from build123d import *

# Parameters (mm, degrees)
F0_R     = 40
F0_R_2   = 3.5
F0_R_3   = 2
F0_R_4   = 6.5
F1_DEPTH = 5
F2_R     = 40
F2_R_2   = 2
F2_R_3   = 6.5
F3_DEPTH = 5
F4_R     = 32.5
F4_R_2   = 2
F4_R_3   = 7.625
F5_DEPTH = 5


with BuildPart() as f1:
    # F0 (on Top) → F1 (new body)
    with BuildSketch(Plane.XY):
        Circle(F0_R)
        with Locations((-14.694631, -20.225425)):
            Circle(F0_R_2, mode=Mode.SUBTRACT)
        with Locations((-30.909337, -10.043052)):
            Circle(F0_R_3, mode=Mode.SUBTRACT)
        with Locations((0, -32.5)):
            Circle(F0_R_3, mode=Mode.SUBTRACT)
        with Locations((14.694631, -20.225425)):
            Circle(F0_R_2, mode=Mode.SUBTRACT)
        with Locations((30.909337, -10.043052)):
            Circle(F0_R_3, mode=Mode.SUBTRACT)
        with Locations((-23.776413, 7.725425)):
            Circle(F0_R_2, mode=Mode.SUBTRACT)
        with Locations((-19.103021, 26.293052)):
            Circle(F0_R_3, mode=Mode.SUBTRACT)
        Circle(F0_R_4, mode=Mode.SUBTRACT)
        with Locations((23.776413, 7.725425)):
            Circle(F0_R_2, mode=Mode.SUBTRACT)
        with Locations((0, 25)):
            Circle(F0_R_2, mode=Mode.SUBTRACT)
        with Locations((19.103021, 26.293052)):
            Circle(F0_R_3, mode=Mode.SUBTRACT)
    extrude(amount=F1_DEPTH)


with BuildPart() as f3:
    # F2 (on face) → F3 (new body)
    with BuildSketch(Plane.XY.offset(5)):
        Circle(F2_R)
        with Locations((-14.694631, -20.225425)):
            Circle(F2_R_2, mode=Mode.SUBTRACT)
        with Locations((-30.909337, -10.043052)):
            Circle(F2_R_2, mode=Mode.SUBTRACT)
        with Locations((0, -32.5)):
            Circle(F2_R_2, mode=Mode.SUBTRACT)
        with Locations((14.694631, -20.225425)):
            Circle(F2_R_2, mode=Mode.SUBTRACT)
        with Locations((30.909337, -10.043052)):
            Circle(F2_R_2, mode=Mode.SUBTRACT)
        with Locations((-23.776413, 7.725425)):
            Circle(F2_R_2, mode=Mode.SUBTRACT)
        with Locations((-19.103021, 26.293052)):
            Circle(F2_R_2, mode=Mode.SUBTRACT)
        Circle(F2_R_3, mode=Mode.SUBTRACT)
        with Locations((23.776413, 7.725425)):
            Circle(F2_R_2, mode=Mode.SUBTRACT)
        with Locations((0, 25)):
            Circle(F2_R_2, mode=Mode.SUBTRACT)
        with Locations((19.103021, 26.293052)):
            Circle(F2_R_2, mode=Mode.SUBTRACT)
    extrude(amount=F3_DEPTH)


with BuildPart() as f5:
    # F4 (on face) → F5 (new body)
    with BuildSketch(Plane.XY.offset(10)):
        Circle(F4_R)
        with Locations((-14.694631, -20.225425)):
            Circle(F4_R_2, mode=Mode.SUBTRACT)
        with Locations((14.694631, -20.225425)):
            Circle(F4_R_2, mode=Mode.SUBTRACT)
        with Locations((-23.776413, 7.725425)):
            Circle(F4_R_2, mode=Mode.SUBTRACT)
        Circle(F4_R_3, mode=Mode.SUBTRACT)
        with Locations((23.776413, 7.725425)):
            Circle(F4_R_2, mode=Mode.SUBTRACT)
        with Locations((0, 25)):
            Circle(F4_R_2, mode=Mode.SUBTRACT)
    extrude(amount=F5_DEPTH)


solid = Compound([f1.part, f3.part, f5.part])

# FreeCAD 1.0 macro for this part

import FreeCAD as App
import Part
import Sketcher

doc = App.newDocument("Part")
body = doc.addObject("PartDesign::Body", "Body")

# Sketch on XY plane
sketch1 = body.newObject("Sketcher::SketchObject", "Sketch")
sketch1.AttachmentSupport = (doc.getObject("XY_Plane"), [""])
sketch1.MapMode = "FlatFace"
sketch1.addGeometry(Part.Circle(App.Vector(0, 0, 0), App.Vector(0, 0, 1), 40), False)
sketch1.addGeometry(Part.Circle(App.Vector(0, -32.5, 0), App.Vector(0, 0, 1), 2), False)
sketch1.addGeometry(Part.Circle(App.Vector(-14.7, -20.2, 0), App.Vector(0, 0, 1), 3.5), False)
sketch1.addGeometry(Part.Circle(App.Vector(-30.9, -10, 0), App.Vector(0, 0, 1), 2), False)
sketch1.addGeometry(Part.Circle(App.Vector(14.7, -20.2, 0), App.Vector(0, 0, 1), 3.5), False)
sketch1.addGeometry(Part.Circle(App.Vector(30.9, -10, 0), App.Vector(0, 0, 1), 2), False)
sketch1.addGeometry(Part.Circle(App.Vector(-23.8, 7.7, 0), App.Vector(0, 0, 1), 3.5), False)
sketch1.addGeometry(Part.Circle(App.Vector(0, 0, 0), App.Vector(0, 0, 1), 6.5), False)
sketch1.addGeometry(Part.Circle(App.Vector(-19.1, 26.3, 0), App.Vector(0, 0, 1), 2), False)
sketch1.addGeometry(Part.Circle(App.Vector(0, 25, 0), App.Vector(0, 0, 1), 3.5), False)
sketch1.addGeometry(Part.Circle(App.Vector(23.8, 7.7, 0), App.Vector(0, 0, 1), 3.5), False)
sketch1.addGeometry(Part.Circle(App.Vector(19.1, 26.3, 0), App.Vector(0, 0, 1), 2), False)
sketch1.addConstraint(Sketcher.Constraint("Coincident", 0, 3, -1, 1))
sketch1.addConstraint(Sketcher.Constraint("Coincident", 7, 3, -1, 1))
sketch1.addConstraint(Sketcher.Constraint("Equal", 1, 3))
sketch1.addConstraint(Sketcher.Constraint("Equal", 2, 4))
sketch1.addConstraint(Sketcher.Constraint("Equal", 3, 5))
sketch1.addConstraint(Sketcher.Constraint("Equal", 4, 6))
sketch1.addConstraint(Sketcher.Constraint("Equal", 5, 8))
sketch1.addConstraint(Sketcher.Constraint("Equal", 6, 9))
sketch1.addConstraint(Sketcher.Constraint("Equal", 9, 10))
sketch1.addConstraint(Sketcher.Constraint("Equal", 8, 11))
sketch1.addConstraint(Sketcher.Constraint("Symmetric", 2, 3, 4, 3, -2))
sketch1.addConstraint(Sketcher.Constraint("Symmetric", 3, 3, 5, 3, -2))
sketch1.addConstraint(Sketcher.Constraint("Symmetric", 6, 3, 10, 3, -2))
sketch1.addConstraint(Sketcher.Constraint("Symmetric", 8, 3, 11, 3, -2))
sketch1.addConstraint(Sketcher.Constraint("PointOnObject", 1, 3, -2))
sketch1.addConstraint(Sketcher.Constraint("PointOnObject", 9, 3, -2))
sketch1.addConstraint(Sketcher.Constraint("Diameter", 0, 80.0))
sketch1.addConstraint(Sketcher.Constraint("Diameter", 1, 4.0))
sketch1.addConstraint(Sketcher.Constraint("Diameter", 2, 7.0))
sketch1.addConstraint(Sketcher.Constraint("Diameter", 7, 13.0))
sketch1.addConstraint(Sketcher.Constraint("DistanceY", -1, 1, 9, 3, 25.0))
sketch1.addConstraint(Sketcher.Constraint("DistanceY", 1, 3, -1, 1, 32.5))
sketch1.addConstraint(Sketcher.Constraint("DistanceX", 2, 3, -1, 1, 14.694631))
sketch1.addConstraint(Sketcher.Constraint("DistanceX", 8, 3, -1, 1, 19.103021))
sketch1.addConstraint(Sketcher.Constraint("DistanceY", -1, 1, 8, 3, 26.293052))
sketch1.addConstraint(Sketcher.Constraint("DistanceY", 1, 3, 3, 3, 22.456948))
sketch1.addConstraint(Sketcher.Constraint("DistanceX", 3, 3, 4, 3, 45.603968))
sketch1.addConstraint(Sketcher.Constraint("DistanceY", 2, 3, 6, 3, 27.95085))
sketch1.addConstraint(Sketcher.Constraint("DistanceY", 2, 3, -1, 1, 20.225425))
sketch1.addConstraint(Sketcher.Constraint("DistanceX", 6, 3, -1, 1, 23.776413))
pad1 = body.newObject("PartDesign::Pad", "Pad")
pad1.Profile = sketch1
pad1.Length = 5
body2 = doc.addObject("PartDesign::Body", "Body001")

# Sketch on XY plane
sketch2 = body2.newObject("Sketcher::SketchObject", "Sketch001")
sketch2.AttachmentSupport = (doc.getObject("XY_Plane001"), [""])
sketch2.MapMode = "FlatFace"
sketch2.AttachmentOffset = App.Placement(App.Vector(0, 0, 5), App.Rotation())
sketch2.addGeometry(Part.Circle(App.Vector(0, 0, 0), App.Vector(0, 0, 1), 40), False)
sketch2.addGeometry(Part.Circle(App.Vector(0, -32.5, 0), App.Vector(0, 0, 1), 2), False)
sketch2.addGeometry(Part.Circle(App.Vector(-14.7, -20.2, 0), App.Vector(0, 0, 1), 2), False)
sketch2.addGeometry(Part.Circle(App.Vector(-30.9, -10, 0), App.Vector(0, 0, 1), 2), False)
sketch2.addGeometry(Part.Circle(App.Vector(14.7, -20.2, 0), App.Vector(0, 0, 1), 2), False)
sketch2.addGeometry(Part.Circle(App.Vector(30.9, -10, 0), App.Vector(0, 0, 1), 2), False)
sketch2.addGeometry(Part.Circle(App.Vector(-23.8, 7.7, 0), App.Vector(0, 0, 1), 2), False)
sketch2.addGeometry(Part.Circle(App.Vector(0, 0, 0), App.Vector(0, 0, 1), 6.5), False)
sketch2.addGeometry(Part.Circle(App.Vector(-19.1, 26.3, 0), App.Vector(0, 0, 1), 2), False)
sketch2.addGeometry(Part.Circle(App.Vector(0, 25, 0), App.Vector(0, 0, 1), 2), False)
sketch2.addGeometry(Part.Circle(App.Vector(23.8, 7.7, 0), App.Vector(0, 0, 1), 2), False)
sketch2.addGeometry(Part.Circle(App.Vector(19.1, 26.3, 0), App.Vector(0, 0, 1), 2), False)
sketch2.addConstraint(Sketcher.Constraint("Coincident", 0, 3, -1, 1))
sketch2.addConstraint(Sketcher.Constraint("Coincident", 7, 3, -1, 1))
sketch2.addConstraint(Sketcher.Constraint("Equal", 1, 2))
sketch2.addConstraint(Sketcher.Constraint("Equal", 2, 3))
sketch2.addConstraint(Sketcher.Constraint("Equal", 3, 4))
sketch2.addConstraint(Sketcher.Constraint("Equal", 4, 5))
sketch2.addConstraint(Sketcher.Constraint("Equal", 5, 6))
sketch2.addConstraint(Sketcher.Constraint("Equal", 6, 8))
sketch2.addConstraint(Sketcher.Constraint("Equal", 8, 9))
sketch2.addConstraint(Sketcher.Constraint("Equal", 9, 10))
sketch2.addConstraint(Sketcher.Constraint("Equal", 10, 11))
sketch2.addConstraint(Sketcher.Constraint("Symmetric", 2, 3, 4, 3, -2))
sketch2.addConstraint(Sketcher.Constraint("Symmetric", 3, 3, 5, 3, -2))
sketch2.addConstraint(Sketcher.Constraint("Symmetric", 6, 3, 10, 3, -2))
sketch2.addConstraint(Sketcher.Constraint("Symmetric", 8, 3, 11, 3, -2))
sketch2.addConstraint(Sketcher.Constraint("PointOnObject", 1, 3, -2))
sketch2.addConstraint(Sketcher.Constraint("PointOnObject", 9, 3, -2))
sketch2.addConstraint(Sketcher.Constraint("Diameter", 0, 80.0))
sketch2.addConstraint(Sketcher.Constraint("Diameter", 1, 4.0))
sketch2.addConstraint(Sketcher.Constraint("Diameter", 7, 13.0))
sketch2.addConstraint(Sketcher.Constraint("DistanceY", -1, 1, 9, 3, 25.0))
sketch2.addConstraint(Sketcher.Constraint("DistanceY", 1, 3, -1, 1, 32.5))
sketch2.addConstraint(Sketcher.Constraint("DistanceX", 2, 3, -1, 1, 14.694631))
sketch2.addConstraint(Sketcher.Constraint("DistanceX", 8, 3, -1, 1, 19.103021))
sketch2.addConstraint(Sketcher.Constraint("DistanceY", -1, 1, 8, 3, 26.293052))
sketch2.addConstraint(Sketcher.Constraint("DistanceY", 1, 3, 3, 3, 22.456948))
sketch2.addConstraint(Sketcher.Constraint("DistanceX", 3, 3, 4, 3, 45.603968))
sketch2.addConstraint(Sketcher.Constraint("DistanceY", 2, 3, 6, 3, 27.95085))
sketch2.addConstraint(Sketcher.Constraint("DistanceY", 2, 3, -1, 1, 20.225425))
sketch2.addConstraint(Sketcher.Constraint("DistanceX", 6, 3, -1, 1, 23.776413))
pad2 = body2.newObject("PartDesign::Pad", "Pad001")
pad2.Profile = sketch2
pad2.Length = 5
body3 = doc.addObject("PartDesign::Body", "Body002")

# Sketch on XY plane
sketch3 = body3.newObject("Sketcher::SketchObject", "Sketch002")
sketch3.AttachmentSupport = (doc.getObject("XY_Plane002"), [""])
sketch3.MapMode = "FlatFace"
sketch3.AttachmentOffset = App.Placement(App.Vector(0, 0, 10), App.Rotation())
sketch3.addGeometry(Part.Circle(App.Vector(0, 0, 0), App.Vector(0, 0, 1), 32.5), False)
sketch3.addGeometry(Part.Circle(App.Vector(-14.7, -20.2, 0), App.Vector(0, 0, 1), 2), False)
sketch3.addGeometry(Part.Circle(App.Vector(0, 0, 0), App.Vector(0, 0, 1), 7.6), False)
sketch3.addGeometry(Part.Circle(App.Vector(14.7, -20.2, 0), App.Vector(0, 0, 1), 2), False)
sketch3.addGeometry(Part.Circle(App.Vector(-23.8, 7.7, 0), App.Vector(0, 0, 1), 2), False)
sketch3.addGeometry(Part.Circle(App.Vector(23.8, 7.7, 0), App.Vector(0, 0, 1), 2), False)
sketch3.addGeometry(Part.Circle(App.Vector(0, 25, 0), App.Vector(0, 0, 1), 2), False)
sketch3.addConstraint(Sketcher.Constraint("Coincident", 0, 3, -1, 1))
sketch3.addConstraint(Sketcher.Constraint("Coincident", 2, 3, -1, 1))
sketch3.addConstraint(Sketcher.Constraint("Equal", 1, 3))
sketch3.addConstraint(Sketcher.Constraint("Equal", 3, 4))
sketch3.addConstraint(Sketcher.Constraint("Equal", 4, 5))
sketch3.addConstraint(Sketcher.Constraint("Equal", 5, 6))
sketch3.addConstraint(Sketcher.Constraint("Symmetric", 1, 3, 3, 3, -2))
sketch3.addConstraint(Sketcher.Constraint("Symmetric", 4, 3, 5, 3, -2))
sketch3.addConstraint(Sketcher.Constraint("PointOnObject", 6, 3, -2))
sketch3.addConstraint(Sketcher.Constraint("Diameter", 0, 65.0))
sketch3.addConstraint(Sketcher.Constraint("Diameter", 1, 4.0))
sketch3.addConstraint(Sketcher.Constraint("Diameter", 2, 15.25))
sketch3.addConstraint(Sketcher.Constraint("DistanceY", -1, 1, 6, 3, 25.0))
sketch3.addConstraint(Sketcher.Constraint("DistanceX", 1, 3, -1, 1, 14.694631))
sketch3.addConstraint(Sketcher.Constraint("DistanceY", 1, 3, 4, 3, 27.95085))
sketch3.addConstraint(Sketcher.Constraint("DistanceY", 1, 3, -1, 1, 20.225425))
sketch3.addConstraint(Sketcher.Constraint("DistanceX", 4, 3, -1, 1, 23.776413))
pad3 = body3.newObject("PartDesign::Pad", "Pad002")
pad3.Profile = sketch3
pad3.Length = 5

doc.recompute()
